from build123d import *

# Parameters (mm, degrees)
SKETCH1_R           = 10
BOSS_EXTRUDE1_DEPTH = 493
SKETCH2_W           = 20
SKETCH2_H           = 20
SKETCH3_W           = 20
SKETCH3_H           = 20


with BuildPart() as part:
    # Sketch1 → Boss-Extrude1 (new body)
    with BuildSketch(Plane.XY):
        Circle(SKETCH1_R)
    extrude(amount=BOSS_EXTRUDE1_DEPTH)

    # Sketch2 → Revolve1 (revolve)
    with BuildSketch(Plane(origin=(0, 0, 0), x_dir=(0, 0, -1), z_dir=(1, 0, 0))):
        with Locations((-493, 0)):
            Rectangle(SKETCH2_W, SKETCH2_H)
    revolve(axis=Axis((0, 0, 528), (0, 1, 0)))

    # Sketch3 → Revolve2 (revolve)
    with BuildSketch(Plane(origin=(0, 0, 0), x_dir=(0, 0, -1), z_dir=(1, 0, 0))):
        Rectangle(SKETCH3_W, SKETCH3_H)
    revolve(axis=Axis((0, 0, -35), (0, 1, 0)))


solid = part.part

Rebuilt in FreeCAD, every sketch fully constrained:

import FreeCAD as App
import Part
import Sketcher

V = App.Vector

doc = App.newDocument("Part")
body = doc.addObject("PartDesign::Body", "Body")

# Sketch on XY plane
sketch1 = body.newObject("Sketcher::SketchObject", "Sketch")
sketch1.AttachmentSupport = (doc.getObject("XY_Plane"), [""])
sketch1.MapMode = "FlatFace"
sketch1.addGeometry(Part.Circle(V(0, 0, 0), V(0, 0, 1), 10), False)
sketch1.addConstraint([
    Sketcher.Constraint("Coincident", 0, 3, -1, 1),
    Sketcher.Constraint("Diameter", 0, 20.0),
])
pad1 = body.newObject("PartDesign::Pad", "Pad")
pad1.Profile = sketch1
pad1.Length = 493

# Sketch on YZ plane
sketch2 = body.newObject("Sketcher::SketchObject", "Sketch001")
sketch2.AttachmentSupport = (doc.getObject("YZ_Plane"), [""])
sketch2.MapMode = "FlatFace"
sketch2.addGeometry([
    Part.LineSegment(V(10, 503, 0), V(-10, 503, 0)),
    Part.LineSegment(V(-10, 503, 0), V(-10, 483, 0)),
    Part.LineSegment(V(-10, 483, 0), V(10, 483, 0)),
    Part.LineSegment(V(10, 483, 0), V(10, 503, 0)),
], False)
sketch2.addGeometry(Part.LineSegment(V(-10, 528, 0), V(10, 528, 0)), True)  # axis
sketch2.addConstraint([
    Sketcher.Constraint("Coincident", 0, 2, 1, 1),
    Sketcher.Constraint("Coincident", 1, 2, 2, 1),
    Sketcher.Constraint("Coincident", 2, 2, 3, 1),
    Sketcher.Constraint("Coincident", 3, 2, 0, 1),
    Sketcher.Constraint("Horizontal", 0),
    Sketcher.Constraint("Vertical", 1),
    Sketcher.Constraint("Horizontal", 2),
    Sketcher.Constraint("Vertical", 3),
    Sketcher.Constraint("Horizontal", 4),
    Sketcher.Constraint("Vertical", 1, 2, 4, 1),
    Sketcher.Constraint("Vertical", 3, 2, 4, 2),
    Sketcher.Constraint("Equal", 4, 1),
    Sketcher.Constraint("DistanceX", 0, 2, 0, 1, 20.0),
    Sketcher.Constraint("DistanceX", 0, 2, -1, 1, 10.0),
    Sketcher.Constraint("DistanceY", -1, 1, 0, 2, 503.0),
    Sketcher.Constraint("DistanceY", -1, 1, 4, 1, 528.0),
])
revolution = body.newObject("PartDesign::Revolution", "Revolution")
revolution.Profile = sketch2
revolution.ReferenceAxis = (sketch2, ["Axis0"])
revolution.Angle = 360

# Sketch on YZ plane
sketch3 = body.newObject("Sketcher::SketchObject", "Sketch002")
sketch3.AttachmentSupport = (doc.getObject("YZ_Plane"), [""])
sketch3.MapMode = "FlatFace"
sketch3.addGeometry([
    Part.LineSegment(V(10, 10, 0), V(-10, 10, 0)),
    Part.LineSegment(V(-10, 10, 0), V(-10, -10, 0)),
    Part.LineSegment(V(-10, -10, 0), V(10, -10, 0)),
    Part.LineSegment(V(10, -10, 0), V(10, 10, 0)),
], False)
sketch3.addGeometry(Part.LineSegment(V(-10, -35, 0), V(10, -35, 0)), True)  # axis
sketch3.addConstraint([
    Sketcher.Constraint("Coincident", 0, 2, 1, 1),
    Sketcher.Constraint("Coincident", 1, 2, 2, 1),
    Sketcher.Constraint("Coincident", 2, 2, 3, 1),
    Sketcher.Constraint("Coincident", 3, 2, 0, 1),
    Sketcher.Constraint("Horizontal", 0),
    Sketcher.Constraint("Vertical", 1),
    Sketcher.Constraint("Horizontal", 2),
    Sketcher.Constraint("Vertical", 3),
    Sketcher.Constraint("Horizontal", 4),
    Sketcher.Constraint("Symmetric", 0, 2, 2, 2, -1, 1),
    Sketcher.Constraint("Vertical", 1, 2, 4, 1),
    Sketcher.Constraint("Vertical", 3, 2, 4, 2),
    Sketcher.Constraint("Equal", 4, 1),
    Sketcher.Constraint("DistanceX", 0, 2, 0, 1, 20.0),
    Sketcher.Constraint("DistanceY", 4, 1, -1, 1, 35.0),
])
revolution2 = body.newObject("PartDesign::Revolution", "Revolution001")
revolution2.Profile = sketch3
revolution2.ReferenceAxis = (sketch3, ["Axis0"])
revolution2.Angle = 360

doc.recompute()
